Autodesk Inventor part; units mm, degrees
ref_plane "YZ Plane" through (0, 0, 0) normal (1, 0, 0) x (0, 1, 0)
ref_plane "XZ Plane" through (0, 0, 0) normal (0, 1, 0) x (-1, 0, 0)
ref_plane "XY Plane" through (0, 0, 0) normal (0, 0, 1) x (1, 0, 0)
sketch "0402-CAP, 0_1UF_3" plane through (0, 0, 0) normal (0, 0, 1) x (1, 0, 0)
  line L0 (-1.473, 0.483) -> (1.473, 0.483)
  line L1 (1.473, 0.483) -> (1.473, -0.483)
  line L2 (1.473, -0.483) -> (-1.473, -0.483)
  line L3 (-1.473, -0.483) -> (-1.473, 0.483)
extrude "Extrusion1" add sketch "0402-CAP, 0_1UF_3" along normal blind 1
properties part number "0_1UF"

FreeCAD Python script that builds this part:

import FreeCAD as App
import Part
import Sketcher

V = App.Vector

doc = App.newDocument("Part")
body = doc.addObject("PartDesign::Body", "Body")

# Sketch on XY plane
sketch1 = doc.addObject("Sketcher::SketchObject", "Sketch")
body.addObject(sketch1)
sketch1.AttachmentSupport = (doc.XY_Plane, [""])
sketch1.MapMode = "FlatFace"
sketch1.addGeometry([
    Part.LineSegment(V(1.473, 0.483, 0), V(-1.473, 0.483, 0)),
    Part.LineSegment(V(-1.473, 0.483, 0), V(-1.473, -0.483, 0)),
    Part.LineSegment(V(-1.473, -0.483, 0), V(1.473, -0.483, 0)),
    Part.LineSegment(V(1.473, -0.483, 0), V(1.473, 0.483, 0)),
], False)
sketch1.addConstraint([
    Sketcher.Constraint("Coincident", 0, 2, 1, 1),
    Sketcher.Constraint("Coincident", 1, 2, 2, 1),
    Sketcher.Constraint("Coincident", 2, 2, 3, 1),
    Sketcher.Constraint("Coincident", 3, 2, 0, 1),
    Sketcher.Constraint("Horizontal", 0),
    Sketcher.Constraint("Vertical", 1),
    Sketcher.Constraint("Horizontal", 2),
    Sketcher.Constraint("Vertical", 3),
    Sketcher.Constraint("Symmetric", 0, 2, 2, 2, -1, 1),
    Sketcher.Constraint("DistanceX", 0, 2, 0, 1, 2.946),
    Sketcher.Constraint("DistanceY", 1, 2, 1, 1, 0.966),
])
pad1 = doc.addObject("PartDesign::Pad", "Pad")
body.addObject(pad1)
pad1.Profile = sketch1
pad1.Length = 1

doc.recompute()
